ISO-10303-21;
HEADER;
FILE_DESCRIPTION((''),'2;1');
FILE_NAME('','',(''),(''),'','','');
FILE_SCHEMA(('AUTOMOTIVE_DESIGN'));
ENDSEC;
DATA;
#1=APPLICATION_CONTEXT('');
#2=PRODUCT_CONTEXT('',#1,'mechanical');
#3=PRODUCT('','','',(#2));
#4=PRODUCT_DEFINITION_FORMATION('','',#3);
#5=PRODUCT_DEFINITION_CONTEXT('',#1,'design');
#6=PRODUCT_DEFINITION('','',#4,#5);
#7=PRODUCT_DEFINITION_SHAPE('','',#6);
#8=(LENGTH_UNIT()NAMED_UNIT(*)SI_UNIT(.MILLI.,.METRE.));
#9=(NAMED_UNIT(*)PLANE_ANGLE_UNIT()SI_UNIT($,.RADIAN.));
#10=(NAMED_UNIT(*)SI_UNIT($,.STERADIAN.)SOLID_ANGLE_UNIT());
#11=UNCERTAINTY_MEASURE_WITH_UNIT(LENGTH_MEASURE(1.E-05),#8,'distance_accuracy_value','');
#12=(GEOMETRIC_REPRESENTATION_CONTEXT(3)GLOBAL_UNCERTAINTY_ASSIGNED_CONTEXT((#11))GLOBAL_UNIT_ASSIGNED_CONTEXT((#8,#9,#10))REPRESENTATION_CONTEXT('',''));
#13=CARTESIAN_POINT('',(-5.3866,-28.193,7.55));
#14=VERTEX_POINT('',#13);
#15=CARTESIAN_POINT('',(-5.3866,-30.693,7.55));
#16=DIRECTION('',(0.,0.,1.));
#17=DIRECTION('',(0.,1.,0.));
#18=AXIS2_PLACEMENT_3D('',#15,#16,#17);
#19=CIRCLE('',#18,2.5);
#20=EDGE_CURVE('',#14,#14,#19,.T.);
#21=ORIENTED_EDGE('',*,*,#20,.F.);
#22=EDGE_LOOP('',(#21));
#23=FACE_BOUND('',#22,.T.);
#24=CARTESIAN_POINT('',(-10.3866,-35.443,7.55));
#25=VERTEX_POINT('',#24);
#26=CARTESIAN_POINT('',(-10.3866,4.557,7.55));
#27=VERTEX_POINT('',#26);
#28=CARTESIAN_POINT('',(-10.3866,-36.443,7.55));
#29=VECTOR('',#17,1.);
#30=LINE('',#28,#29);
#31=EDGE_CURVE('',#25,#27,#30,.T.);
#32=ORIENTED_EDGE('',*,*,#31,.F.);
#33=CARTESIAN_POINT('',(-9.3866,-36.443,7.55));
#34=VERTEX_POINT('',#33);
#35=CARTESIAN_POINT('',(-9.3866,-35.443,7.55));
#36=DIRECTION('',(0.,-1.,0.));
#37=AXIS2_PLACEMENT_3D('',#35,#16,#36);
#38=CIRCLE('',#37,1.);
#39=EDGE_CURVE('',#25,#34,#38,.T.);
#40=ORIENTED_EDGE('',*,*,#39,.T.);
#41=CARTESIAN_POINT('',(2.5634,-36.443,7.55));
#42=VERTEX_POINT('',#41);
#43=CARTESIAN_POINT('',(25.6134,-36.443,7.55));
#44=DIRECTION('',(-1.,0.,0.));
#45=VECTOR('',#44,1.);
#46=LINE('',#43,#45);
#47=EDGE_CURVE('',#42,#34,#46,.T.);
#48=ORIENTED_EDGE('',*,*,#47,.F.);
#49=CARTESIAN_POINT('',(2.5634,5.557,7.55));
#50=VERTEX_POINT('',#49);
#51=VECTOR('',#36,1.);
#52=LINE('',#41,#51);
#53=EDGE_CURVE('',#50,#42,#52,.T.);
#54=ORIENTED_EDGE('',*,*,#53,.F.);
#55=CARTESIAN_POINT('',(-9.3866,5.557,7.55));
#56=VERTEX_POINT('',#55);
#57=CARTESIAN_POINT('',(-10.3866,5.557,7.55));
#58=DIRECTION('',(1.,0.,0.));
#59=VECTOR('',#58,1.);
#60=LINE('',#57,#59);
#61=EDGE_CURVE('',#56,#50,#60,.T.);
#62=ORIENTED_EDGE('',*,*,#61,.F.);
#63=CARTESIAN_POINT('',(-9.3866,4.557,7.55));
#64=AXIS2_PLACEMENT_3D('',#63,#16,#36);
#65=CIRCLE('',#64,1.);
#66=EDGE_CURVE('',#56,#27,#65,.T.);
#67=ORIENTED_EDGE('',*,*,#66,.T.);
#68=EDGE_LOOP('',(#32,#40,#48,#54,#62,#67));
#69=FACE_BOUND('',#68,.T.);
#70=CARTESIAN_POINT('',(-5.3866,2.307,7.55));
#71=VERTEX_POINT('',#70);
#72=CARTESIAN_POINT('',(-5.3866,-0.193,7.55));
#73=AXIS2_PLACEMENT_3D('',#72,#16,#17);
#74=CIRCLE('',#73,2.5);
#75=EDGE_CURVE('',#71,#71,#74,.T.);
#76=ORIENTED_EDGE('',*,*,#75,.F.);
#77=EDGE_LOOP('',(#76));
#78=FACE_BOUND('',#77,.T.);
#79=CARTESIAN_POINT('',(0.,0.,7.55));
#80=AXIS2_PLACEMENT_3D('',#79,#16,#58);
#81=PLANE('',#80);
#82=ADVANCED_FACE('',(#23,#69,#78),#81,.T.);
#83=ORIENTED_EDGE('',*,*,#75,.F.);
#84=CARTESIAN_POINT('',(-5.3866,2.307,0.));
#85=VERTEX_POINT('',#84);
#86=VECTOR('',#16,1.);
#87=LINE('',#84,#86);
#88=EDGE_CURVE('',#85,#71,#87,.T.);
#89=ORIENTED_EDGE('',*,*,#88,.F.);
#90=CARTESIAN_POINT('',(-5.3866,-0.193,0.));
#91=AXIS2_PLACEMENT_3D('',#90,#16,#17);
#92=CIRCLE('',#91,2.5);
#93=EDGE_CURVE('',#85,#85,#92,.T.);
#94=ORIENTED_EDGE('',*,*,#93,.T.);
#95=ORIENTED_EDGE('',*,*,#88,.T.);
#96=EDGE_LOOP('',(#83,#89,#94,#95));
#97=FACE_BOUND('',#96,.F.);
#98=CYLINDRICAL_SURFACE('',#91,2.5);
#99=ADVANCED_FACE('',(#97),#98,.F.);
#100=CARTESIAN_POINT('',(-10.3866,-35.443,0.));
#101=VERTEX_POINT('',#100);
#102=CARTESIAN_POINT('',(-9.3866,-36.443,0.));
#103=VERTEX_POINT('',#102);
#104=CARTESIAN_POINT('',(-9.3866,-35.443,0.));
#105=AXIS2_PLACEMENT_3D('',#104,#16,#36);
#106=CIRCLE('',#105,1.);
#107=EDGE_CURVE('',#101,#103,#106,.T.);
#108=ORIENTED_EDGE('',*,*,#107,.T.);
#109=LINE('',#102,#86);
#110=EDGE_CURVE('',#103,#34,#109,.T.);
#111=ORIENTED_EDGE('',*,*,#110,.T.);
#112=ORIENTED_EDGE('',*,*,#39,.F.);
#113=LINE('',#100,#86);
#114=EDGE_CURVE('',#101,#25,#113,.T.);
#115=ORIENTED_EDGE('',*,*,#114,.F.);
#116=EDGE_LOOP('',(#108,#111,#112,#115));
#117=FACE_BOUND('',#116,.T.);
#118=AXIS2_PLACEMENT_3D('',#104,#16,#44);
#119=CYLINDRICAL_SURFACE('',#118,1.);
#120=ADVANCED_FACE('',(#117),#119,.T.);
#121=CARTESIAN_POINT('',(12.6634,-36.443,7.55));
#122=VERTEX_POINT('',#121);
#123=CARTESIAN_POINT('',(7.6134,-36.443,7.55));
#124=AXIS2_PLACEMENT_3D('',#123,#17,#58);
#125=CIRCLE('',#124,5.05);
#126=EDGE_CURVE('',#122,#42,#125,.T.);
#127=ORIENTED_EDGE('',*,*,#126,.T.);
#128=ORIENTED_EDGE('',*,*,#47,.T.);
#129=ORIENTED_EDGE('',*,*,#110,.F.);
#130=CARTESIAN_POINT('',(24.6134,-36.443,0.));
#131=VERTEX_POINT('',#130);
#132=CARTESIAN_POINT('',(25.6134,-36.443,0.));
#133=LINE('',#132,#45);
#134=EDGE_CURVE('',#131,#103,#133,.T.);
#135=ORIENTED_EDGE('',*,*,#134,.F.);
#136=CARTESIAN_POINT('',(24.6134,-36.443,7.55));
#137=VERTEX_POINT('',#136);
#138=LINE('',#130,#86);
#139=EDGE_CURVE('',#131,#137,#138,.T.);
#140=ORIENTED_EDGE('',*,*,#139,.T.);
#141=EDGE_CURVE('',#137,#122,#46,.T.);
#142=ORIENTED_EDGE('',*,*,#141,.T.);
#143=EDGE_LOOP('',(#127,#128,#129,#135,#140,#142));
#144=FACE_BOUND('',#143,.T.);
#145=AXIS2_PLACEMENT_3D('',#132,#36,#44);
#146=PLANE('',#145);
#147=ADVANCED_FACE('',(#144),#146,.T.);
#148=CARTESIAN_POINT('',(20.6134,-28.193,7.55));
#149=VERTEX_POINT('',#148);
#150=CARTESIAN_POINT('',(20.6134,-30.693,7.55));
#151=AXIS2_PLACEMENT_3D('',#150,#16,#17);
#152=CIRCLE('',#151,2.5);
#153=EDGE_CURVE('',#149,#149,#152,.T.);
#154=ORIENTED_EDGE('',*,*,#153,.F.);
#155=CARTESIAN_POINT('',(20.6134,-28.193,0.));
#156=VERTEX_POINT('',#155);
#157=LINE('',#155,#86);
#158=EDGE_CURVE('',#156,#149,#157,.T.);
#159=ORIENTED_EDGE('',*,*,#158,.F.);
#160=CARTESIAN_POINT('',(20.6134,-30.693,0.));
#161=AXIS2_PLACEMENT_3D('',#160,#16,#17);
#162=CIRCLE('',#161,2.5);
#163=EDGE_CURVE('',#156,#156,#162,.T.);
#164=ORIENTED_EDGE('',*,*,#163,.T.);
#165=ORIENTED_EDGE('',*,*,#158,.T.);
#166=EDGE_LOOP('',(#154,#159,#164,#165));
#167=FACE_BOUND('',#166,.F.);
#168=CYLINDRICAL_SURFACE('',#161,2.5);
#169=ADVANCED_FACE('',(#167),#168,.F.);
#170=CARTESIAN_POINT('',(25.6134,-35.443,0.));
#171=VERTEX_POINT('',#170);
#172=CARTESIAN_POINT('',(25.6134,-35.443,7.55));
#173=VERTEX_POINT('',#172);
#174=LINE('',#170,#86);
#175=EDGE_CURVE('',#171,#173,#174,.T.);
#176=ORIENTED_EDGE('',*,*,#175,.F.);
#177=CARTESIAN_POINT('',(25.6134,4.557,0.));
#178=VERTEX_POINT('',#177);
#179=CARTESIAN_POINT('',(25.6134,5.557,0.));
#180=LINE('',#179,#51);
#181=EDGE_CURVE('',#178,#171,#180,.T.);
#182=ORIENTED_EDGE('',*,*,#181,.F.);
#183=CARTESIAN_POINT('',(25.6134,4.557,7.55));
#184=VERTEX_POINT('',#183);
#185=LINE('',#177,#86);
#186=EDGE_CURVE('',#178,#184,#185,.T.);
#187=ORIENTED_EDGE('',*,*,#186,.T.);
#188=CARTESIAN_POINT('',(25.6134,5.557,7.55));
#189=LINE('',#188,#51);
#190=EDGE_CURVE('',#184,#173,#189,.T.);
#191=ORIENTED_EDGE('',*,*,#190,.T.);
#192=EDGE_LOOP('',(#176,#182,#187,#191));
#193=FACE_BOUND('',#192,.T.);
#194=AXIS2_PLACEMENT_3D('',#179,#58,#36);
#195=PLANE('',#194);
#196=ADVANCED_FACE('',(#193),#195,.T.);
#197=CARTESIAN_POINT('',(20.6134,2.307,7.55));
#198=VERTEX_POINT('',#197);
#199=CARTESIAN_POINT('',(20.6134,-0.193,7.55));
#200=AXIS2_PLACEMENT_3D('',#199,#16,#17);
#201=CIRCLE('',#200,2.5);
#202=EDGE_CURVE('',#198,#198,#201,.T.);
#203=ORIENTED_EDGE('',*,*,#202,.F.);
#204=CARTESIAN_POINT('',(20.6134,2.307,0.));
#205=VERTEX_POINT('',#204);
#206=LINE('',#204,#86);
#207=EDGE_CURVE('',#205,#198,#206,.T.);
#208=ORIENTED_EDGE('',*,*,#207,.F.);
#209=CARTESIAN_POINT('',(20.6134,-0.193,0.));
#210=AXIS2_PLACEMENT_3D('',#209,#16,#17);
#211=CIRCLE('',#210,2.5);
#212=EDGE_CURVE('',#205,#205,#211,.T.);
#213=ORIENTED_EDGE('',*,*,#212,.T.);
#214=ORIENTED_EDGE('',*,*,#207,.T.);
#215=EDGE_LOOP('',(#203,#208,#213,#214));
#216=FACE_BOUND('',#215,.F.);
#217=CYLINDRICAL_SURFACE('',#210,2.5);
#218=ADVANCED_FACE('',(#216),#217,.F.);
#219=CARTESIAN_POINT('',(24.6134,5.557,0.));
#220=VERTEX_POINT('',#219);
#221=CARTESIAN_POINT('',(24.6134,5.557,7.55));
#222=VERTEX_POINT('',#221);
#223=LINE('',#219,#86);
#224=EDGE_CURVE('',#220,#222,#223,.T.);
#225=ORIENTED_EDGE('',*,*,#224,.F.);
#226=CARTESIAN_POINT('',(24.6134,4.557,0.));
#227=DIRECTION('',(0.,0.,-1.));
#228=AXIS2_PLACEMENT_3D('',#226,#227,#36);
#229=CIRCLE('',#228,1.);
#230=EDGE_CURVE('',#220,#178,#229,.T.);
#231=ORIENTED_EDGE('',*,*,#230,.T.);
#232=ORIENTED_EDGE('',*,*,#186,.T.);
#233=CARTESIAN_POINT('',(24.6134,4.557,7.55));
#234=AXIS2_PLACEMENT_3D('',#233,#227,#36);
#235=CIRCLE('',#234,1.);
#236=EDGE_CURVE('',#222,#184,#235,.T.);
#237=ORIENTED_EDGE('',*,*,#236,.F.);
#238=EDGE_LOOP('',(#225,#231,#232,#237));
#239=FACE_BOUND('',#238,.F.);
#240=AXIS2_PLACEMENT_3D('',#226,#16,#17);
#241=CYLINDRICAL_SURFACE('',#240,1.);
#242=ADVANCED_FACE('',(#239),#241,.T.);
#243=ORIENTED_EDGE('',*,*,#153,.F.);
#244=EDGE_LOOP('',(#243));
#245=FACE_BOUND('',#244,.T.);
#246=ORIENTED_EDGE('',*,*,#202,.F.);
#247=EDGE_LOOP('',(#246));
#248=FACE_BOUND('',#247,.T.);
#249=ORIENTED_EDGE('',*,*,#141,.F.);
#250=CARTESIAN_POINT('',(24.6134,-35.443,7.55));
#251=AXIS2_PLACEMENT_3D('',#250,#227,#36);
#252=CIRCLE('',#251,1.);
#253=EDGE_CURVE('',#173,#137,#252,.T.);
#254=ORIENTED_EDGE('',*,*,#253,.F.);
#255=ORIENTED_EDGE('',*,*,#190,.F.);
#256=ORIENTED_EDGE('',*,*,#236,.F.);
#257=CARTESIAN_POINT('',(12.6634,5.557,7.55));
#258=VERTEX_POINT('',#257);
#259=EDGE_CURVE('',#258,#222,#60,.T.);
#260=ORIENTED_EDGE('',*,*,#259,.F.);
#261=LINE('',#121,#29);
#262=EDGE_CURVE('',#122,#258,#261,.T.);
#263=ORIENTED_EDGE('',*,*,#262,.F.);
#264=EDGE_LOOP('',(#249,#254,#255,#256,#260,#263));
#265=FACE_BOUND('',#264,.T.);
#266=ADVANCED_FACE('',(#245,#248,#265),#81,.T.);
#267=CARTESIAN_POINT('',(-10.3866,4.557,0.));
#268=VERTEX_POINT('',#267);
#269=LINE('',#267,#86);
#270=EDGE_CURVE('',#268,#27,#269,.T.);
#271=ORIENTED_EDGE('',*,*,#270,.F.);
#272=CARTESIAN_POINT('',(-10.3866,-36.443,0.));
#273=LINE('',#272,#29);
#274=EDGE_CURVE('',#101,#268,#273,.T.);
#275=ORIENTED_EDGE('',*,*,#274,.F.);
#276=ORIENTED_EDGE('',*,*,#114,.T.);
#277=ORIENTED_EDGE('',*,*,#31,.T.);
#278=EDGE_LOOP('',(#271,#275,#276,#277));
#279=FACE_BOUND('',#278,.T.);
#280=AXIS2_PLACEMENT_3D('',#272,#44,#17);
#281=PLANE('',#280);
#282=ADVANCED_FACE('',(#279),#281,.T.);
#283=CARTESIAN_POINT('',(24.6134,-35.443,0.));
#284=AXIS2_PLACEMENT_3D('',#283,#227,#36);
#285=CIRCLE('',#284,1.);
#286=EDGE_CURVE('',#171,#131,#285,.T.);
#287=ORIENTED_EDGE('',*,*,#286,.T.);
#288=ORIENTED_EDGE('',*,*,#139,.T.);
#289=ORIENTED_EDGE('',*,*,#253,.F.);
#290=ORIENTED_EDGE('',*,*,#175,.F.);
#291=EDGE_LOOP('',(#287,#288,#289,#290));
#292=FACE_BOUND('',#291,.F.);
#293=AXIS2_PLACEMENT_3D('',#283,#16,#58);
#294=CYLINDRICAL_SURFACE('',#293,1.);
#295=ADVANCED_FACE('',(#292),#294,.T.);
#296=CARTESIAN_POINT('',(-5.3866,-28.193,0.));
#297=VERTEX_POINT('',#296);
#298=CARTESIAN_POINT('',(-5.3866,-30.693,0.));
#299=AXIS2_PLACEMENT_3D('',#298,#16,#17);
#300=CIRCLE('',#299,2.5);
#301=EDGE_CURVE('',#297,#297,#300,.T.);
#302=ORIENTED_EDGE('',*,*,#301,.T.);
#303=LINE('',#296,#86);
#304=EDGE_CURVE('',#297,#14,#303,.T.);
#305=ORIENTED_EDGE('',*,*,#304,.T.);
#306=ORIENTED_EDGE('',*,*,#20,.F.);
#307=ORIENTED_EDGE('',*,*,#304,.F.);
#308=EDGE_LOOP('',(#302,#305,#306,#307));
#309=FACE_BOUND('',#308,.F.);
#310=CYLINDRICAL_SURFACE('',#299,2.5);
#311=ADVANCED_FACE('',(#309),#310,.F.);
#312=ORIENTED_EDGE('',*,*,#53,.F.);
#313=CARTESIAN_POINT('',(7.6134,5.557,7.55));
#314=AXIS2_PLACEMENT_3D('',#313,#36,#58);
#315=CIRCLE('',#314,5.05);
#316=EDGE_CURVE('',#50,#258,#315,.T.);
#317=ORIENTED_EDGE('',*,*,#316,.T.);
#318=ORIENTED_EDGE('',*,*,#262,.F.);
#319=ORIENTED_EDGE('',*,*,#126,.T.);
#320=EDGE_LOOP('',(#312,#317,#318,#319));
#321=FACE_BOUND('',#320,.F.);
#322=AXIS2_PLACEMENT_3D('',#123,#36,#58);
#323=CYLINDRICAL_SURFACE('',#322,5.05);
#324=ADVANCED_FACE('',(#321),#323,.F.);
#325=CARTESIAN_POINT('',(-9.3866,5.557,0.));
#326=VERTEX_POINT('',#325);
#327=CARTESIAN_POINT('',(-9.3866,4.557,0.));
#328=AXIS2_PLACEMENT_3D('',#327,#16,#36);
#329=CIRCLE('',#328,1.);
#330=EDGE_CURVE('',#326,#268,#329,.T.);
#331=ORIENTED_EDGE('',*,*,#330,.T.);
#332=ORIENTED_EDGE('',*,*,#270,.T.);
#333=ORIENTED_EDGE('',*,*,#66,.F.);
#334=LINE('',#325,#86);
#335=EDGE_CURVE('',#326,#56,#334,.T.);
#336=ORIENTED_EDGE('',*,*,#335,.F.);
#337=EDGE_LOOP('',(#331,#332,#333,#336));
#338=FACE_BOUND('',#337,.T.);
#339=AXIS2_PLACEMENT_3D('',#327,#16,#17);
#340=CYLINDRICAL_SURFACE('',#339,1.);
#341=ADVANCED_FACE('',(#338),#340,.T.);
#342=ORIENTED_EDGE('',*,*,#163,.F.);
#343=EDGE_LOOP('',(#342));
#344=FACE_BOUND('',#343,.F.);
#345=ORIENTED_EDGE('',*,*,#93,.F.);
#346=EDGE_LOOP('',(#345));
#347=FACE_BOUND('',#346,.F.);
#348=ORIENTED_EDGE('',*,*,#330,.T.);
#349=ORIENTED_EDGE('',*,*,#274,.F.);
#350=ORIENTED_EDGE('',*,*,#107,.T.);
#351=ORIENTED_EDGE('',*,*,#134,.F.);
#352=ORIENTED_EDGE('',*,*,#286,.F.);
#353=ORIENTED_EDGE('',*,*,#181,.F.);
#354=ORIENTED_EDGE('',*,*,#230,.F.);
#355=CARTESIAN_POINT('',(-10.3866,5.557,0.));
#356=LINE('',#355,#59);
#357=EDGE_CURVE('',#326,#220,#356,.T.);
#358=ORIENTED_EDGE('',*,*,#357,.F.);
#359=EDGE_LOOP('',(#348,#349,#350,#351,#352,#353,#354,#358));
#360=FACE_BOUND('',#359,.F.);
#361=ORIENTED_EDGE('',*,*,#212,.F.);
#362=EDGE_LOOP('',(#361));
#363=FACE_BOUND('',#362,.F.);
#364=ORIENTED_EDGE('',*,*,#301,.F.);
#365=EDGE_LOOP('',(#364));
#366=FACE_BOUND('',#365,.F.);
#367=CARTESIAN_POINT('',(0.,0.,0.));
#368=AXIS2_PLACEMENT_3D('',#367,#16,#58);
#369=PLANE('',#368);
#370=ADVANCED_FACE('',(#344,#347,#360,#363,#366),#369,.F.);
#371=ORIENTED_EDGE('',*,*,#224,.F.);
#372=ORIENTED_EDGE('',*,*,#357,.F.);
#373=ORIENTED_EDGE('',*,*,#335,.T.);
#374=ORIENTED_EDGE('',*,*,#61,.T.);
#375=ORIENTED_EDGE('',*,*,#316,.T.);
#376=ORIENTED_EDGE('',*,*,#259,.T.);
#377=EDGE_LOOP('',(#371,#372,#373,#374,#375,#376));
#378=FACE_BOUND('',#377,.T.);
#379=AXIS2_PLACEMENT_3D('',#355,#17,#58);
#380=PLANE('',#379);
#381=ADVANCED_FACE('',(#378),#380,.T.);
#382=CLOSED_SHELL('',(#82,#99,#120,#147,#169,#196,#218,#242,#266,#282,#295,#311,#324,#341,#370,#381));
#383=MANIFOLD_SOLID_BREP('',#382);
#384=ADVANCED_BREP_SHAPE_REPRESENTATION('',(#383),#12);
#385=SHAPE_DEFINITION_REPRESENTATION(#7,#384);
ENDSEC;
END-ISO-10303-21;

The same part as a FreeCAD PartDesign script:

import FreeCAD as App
import Part
import Sketcher
Q = App.Units.Quantity


def edges_at(feature, points):
    """Names of the edges that pass closest to the given points."""
    edges = feature.Shape.Edges
    near = lambda p: min(range(len(edges)), key=lambda i: edges[i].distToShape(Part.Vertex(*p))[0])
    return sorted({f"Edge{near(p) + 1}" for p in points})

doc = App.newDocument("Part")
body = doc.addObject("PartDesign::Body", "Body")

# Sketch on XY plane
sketch1 = body.newObject("Sketcher::SketchObject", "Sketch")
sketch1.AttachmentSupport = (doc.getObject("XY_Plane"), [""])
sketch1.MapMode = "FlatFace"
sketch1.addGeometry(Part.LineSegment(App.Vector(25.6134, 5.557, 0), App.Vector(-10.3866, 5.557, 0)), False)
sketch1.addGeometry(Part.LineSegment(App.Vector(-10.3866, 5.557, 0), App.Vector(-10.3866, -36.443, 0)), False)
sketch1.addGeometry(Part.LineSegment(App.Vector(-10.3866, -36.443, 0), App.Vector(25.6134, -36.443, 0)), False)
sketch1.addGeometry(Part.LineSegment(App.Vector(25.6134, -36.443, 0), App.Vector(25.6134, 5.557, 0)), False)
sketch1.addConstraint(Sketcher.Constraint("Coincident", 0, 2, 1, 1))
sketch1.addConstraint(Sketcher.Constraint("Coincident", 1, 2, 2, 1))
sketch1.addConstraint(Sketcher.Constraint("Coincident", 2, 2, 3, 1))
sketch1.addConstraint(Sketcher.Constraint("Coincident", 3, 2, 0, 1))
sketch1.addConstraint(Sketcher.Constraint("Horizontal", 0))
sketch1.addConstraint(Sketcher.Constraint("Vertical", 1))
sketch1.addConstraint(Sketcher.Constraint("Horizontal", 2))
sketch1.addConstraint(Sketcher.Constraint("Vertical", 3))
sketch1.addConstraint(Sketcher.Constraint("DistanceX", 0, 2, 0, 1, Q("36 mm")))
sketch1.addConstraint(Sketcher.Constraint("DistanceY", 1, 2, 1, 1, Q("42 mm")))
sketch1.addConstraint(Sketcher.Constraint("DistanceY", -1, 1, 0, 2, Q("5.557 mm")))
sketch1.addConstraint(Sketcher.Constraint("DistanceX", 0, 2, -1, 1, Q("10.3866 mm")))
pad1 = body.newObject("PartDesign::Pad", "Pad")
pad1.Profile = sketch1
pad1.Length = 7.55

# Sketch on XY plane
sketch2 = body.newObject("Sketcher::SketchObject", "Sketch001")
sketch2.AttachmentSupport = (doc.getObject("XY_Plane"), [""])
sketch2.MapMode = "FlatFace"
sketch2.addGeometry(Part.Circle(App.Vector(20.6134, -0.193, 0), App.Vector(0, 0, 1), 2.5), False)
sketch2.addGeometry(Part.Circle(App.Vector(20.6134, -30.693, 0), App.Vector(0, 0, 1), 2.5), False)
sketch2.addGeometry(Part.Circle(App.Vector(-5.3866, -0.193, 0), App.Vector(0, 0, 1), 2.5), False)
sketch2.addGeometry(Part.Circle(App.Vector(-5.3866, -30.693, 0), App.Vector(0, 0, 1), 2.5), False)
sketch2.addConstraint(Sketcher.Constraint("Equal", 0, 1))
sketch2.addConstraint(Sketcher.Constraint("Equal", 1, 2))
sketch2.addConstraint(Sketcher.Constraint("Equal", 2, 3))
sketch2.addConstraint(Sketcher.Constraint("Horizontal", 0, 3, 2, 3))
sketch2.addConstraint(Sketcher.Constraint("Horizontal", 1, 3, 3, 3))
sketch2.addConstraint(Sketcher.Constraint("Vertical", 0, 3, 1, 3))
sketch2.addConstraint(Sketcher.Constraint("Vertical", 2, 3, 3, 3))
sketch2.addConstraint(Sketcher.Constraint("Diameter", 0, Q("5 mm")))
sketch2.addConstraint(Sketcher.Constraint("DistanceX", 2, 3, 0, 3, Q("26 mm")))
sketch2.addConstraint(Sketcher.Constraint("DistanceY", 1, 3, 0, 3, Q("30.5 mm")))
sketch2.addConstraint(Sketcher.Constraint("DistanceY", 0, 3, -1, 1, Q("0.193 mm")))
sketch2.addConstraint(Sketcher.Constraint("DistanceX", -1, 1, 0, 3, Q("20.6134 mm")))
doc.recompute()
hole = body.newObject("PartDesign::Hole", "Hole")
hole.Profile = sketch2
hole.ThreadType = "None"
hole.Diameter = 5
hole.DepthType = "ThroughAll"
hole.Reversed = True

# Sketch on XZ plane
sketch3 = body.newObject("Sketcher::SketchObject", "Sketch002")
sketch3.AttachmentSupport = (doc.getObject("XZ_Plane"), [""])
sketch3.MapMode = "FlatFace"
sketch3.AttachmentOffset = App.Placement(App.Vector(0, 0, 36.443), App.Rotation())
sketch3.addGeometry(Part.Circle(App.Vector(7.6134, 7.55, 0), App.Vector(0, 0, 1), 5.05), False)
sketch3.addConstraint(Sketcher.Constraint("Diameter", 0, Q("10.1 mm")))
sketch3.addConstraint(Sketcher.Constraint("DistanceY", -1, 1, 0, 3, Q("7.55 mm")))
sketch3.addConstraint(Sketcher.Constraint("DistanceX", -1, 1, 0, 3, Q("7.6134 mm")))
pocket1 = body.newObject("PartDesign::Pocket", "Pocket")
pocket1.Profile = sketch3
pocket1.Type = "ThroughAll"
doc.recompute()

fillet = body.newObject("PartDesign::Fillet", "Fillet")
fillet.Base = (pocket1, edges_at(pocket1, [
    (-10.387, -36.443, 3.775),
    (-10.387, 5.557, 3.775),
    (25.613, -36.443, 3.775),
    (25.613, 5.557, 3.775),
]))
fillet.Radius = 1

doc.recompute()
